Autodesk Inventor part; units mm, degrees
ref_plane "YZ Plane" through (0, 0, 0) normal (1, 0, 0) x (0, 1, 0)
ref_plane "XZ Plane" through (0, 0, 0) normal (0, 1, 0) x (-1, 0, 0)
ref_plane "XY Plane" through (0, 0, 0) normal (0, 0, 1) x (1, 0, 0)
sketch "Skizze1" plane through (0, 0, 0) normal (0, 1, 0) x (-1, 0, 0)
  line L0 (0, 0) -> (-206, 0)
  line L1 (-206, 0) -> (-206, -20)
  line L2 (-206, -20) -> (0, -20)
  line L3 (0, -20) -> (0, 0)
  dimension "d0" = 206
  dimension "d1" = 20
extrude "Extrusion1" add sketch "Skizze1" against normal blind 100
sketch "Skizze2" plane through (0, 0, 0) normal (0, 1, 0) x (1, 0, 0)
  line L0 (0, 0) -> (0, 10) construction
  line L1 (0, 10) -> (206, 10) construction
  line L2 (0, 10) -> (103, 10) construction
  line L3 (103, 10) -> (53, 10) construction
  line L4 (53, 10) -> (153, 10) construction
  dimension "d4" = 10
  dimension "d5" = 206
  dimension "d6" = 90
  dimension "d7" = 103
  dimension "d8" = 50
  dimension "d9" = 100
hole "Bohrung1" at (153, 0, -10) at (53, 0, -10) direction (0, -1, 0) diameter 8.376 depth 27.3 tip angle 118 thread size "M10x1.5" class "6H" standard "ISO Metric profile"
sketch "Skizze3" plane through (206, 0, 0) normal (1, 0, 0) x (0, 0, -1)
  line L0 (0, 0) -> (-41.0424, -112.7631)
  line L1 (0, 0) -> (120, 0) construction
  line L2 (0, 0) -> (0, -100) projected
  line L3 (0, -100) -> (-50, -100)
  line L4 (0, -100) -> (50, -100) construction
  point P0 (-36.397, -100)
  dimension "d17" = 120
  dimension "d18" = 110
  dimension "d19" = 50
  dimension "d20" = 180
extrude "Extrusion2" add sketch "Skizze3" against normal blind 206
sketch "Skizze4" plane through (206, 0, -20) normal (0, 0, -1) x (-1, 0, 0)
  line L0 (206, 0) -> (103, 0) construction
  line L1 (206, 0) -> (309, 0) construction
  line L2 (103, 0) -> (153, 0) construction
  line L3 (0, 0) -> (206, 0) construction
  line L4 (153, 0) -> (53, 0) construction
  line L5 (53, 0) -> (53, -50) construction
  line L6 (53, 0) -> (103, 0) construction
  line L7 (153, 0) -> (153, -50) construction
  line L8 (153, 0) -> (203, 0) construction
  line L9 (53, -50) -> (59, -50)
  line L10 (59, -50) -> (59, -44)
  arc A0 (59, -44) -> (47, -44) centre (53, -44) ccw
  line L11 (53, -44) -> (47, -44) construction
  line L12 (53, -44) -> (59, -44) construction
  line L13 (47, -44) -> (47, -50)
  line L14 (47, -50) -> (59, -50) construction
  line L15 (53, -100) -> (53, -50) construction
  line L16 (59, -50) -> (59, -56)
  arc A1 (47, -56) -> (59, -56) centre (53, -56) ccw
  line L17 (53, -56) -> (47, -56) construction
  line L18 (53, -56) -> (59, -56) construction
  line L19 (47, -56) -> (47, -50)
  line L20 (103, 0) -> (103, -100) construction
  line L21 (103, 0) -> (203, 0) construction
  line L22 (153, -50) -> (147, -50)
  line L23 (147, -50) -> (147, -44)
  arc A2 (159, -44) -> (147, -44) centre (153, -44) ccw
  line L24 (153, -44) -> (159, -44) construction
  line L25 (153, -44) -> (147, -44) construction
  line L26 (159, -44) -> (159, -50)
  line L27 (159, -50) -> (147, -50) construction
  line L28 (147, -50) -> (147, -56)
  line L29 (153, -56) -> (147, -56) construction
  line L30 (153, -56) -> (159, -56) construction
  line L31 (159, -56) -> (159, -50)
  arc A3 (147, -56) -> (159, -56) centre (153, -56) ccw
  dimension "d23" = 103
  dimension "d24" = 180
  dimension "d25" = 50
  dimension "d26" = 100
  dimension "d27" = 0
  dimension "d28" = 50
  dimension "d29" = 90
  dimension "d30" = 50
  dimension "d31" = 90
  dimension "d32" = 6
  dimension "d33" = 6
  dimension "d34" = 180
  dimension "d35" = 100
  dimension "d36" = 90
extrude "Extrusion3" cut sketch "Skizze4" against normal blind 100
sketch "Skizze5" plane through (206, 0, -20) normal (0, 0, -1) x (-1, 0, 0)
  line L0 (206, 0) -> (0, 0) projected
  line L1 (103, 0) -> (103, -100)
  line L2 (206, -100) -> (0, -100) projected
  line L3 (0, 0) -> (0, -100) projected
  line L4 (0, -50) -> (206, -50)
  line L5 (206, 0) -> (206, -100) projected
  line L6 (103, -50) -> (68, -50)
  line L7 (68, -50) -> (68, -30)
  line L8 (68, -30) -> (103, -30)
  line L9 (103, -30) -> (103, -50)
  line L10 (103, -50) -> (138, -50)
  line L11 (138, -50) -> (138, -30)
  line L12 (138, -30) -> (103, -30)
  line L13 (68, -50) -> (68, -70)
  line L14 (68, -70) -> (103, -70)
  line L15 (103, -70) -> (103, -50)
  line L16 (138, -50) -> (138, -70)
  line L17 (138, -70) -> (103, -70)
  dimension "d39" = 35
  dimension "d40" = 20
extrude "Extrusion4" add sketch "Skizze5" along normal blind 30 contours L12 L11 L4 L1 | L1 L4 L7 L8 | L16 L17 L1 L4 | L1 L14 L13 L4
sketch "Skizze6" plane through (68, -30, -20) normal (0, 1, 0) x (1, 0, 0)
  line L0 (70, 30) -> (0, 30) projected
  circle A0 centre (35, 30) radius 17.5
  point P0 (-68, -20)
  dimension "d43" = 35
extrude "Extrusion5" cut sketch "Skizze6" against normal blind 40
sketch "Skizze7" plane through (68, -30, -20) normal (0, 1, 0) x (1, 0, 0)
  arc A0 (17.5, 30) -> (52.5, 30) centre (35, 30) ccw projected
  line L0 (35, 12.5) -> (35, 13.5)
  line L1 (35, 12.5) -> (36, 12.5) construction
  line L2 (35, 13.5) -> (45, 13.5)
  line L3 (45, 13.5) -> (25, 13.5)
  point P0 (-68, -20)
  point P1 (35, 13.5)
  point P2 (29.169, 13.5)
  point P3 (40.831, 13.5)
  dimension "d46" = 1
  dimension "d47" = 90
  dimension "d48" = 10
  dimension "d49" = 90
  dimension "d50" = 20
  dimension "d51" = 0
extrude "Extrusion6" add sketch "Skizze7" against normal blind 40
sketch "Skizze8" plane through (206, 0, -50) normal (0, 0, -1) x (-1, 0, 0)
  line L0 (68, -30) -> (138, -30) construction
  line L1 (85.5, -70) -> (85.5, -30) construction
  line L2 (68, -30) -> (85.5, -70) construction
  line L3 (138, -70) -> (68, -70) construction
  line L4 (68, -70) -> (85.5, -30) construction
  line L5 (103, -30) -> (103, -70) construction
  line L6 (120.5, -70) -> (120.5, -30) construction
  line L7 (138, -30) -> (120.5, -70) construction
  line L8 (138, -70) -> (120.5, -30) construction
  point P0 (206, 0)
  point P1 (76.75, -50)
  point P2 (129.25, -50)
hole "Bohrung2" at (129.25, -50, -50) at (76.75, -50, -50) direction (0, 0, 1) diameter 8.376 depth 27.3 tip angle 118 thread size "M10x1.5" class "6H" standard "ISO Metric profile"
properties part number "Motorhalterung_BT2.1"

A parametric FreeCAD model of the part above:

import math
import FreeCAD as App
import Part
import Sketcher

V = App.Vector
Q = App.Units.Quantity


def add_polygon(sketch, points):
    """Adds a closed chain of lines whose ends are joined by coincident constraints."""
    first, n = sketch.GeometryCount, len(points)
    for a, b in zip(points, points[1:] + points[:1]):
        sketch.addGeometry(Part.LineSegment(App.Vector(*a, 0), App.Vector(*b, 0)), False)
    for i in range(n):
        sketch.addConstraint(Sketcher.Constraint("Coincident", first + i, 2, first + (i + 1) % n, 1))

doc = App.newDocument("Part")
body = doc.addObject("PartDesign::Body", "Body")

# Sketch on XZ plane
sketch1 = doc.addObject("Sketcher::SketchObject", "Sketch")
body.addObject(sketch1)
sketch1.AttachmentSupport = (doc.XZ_Plane, [""])
sketch1.MapMode = "FlatFace"
add_polygon(sketch1, [(0, -20), (0, 0), (206, 0), (206, -20)])  # lines 0-3
sketch1.addConstraint([
    Sketcher.Constraint("Vertical", 0),
    Sketcher.Constraint("Horizontal", 1),
    Sketcher.Constraint("Vertical", 2),
    Sketcher.Constraint("Horizontal", 3),
    Sketcher.Constraint("Coincident", 0, 2, -1, 1),
    Sketcher.Constraint("DistanceX", 1, 1, 1, 2, Q("206 mm")),
    Sketcher.Constraint("DistanceY", 0, 1, 0, 2, Q("20 mm")),
])
pad1 = doc.addObject("PartDesign::Pad", "Pad")
body.addObject(pad1)
pad1.Profile = sketch1
pad1.Length = 100

# Sketch on XZ plane
sketch2 = doc.addObject("Sketcher::SketchObject", "Sketch001")
body.addObject(sketch2)
sketch2.AttachmentSupport = (doc.XZ_Plane, [""])
sketch2.MapMode = "FlatFace"
sketch2.addGeometry([
    Part.Circle(V(153, -10, 0), V(0, 0, 1), 4.188),
    Part.Circle(V(53, -10, 0), V(0, 0, 1), 4.188),
], False)
sketch2.addConstraint([
    Sketcher.Constraint("Equal", 0, 1),
    Sketcher.Constraint("Horizontal", 0, 3, 1, 3),
    Sketcher.Constraint("Diameter", 0, Q("8.376 mm")),
    Sketcher.Constraint("DistanceX", -1, 1, 0, 3, Q("153 mm")),
    Sketcher.Constraint("DistanceY", 0, 3, -1, 1, Q("10 mm")),
    Sketcher.Constraint("DistanceX", -1, 1, 1, 3, Q("53 mm")),
])
doc.recompute()
hole = doc.addObject("PartDesign::Hole", "Hole")
body.addObject(hole)
hole.Profile = sketch2
hole.ThreadType = "None"
hole.Diameter = 8.376
hole.DepthType = "Dimension"
hole.Depth = 27.3
hole.DrillPoint = "Angled"
hole.DrillPointAngle = 118
hole.Reversed = True

# Sketch on YZ plane
sketch3 = doc.addObject("Sketcher::SketchObject", "Sketch002")
body.addObject(sketch3)
sketch3.AttachmentSupport = (doc.YZ_Plane, [""])
sketch3.MapMode = "FlatFace"
sketch3.AttachmentOffset = App.Placement(V(0, 0, 206), App.Rotation())
add_polygon(sketch3, [(-100, 0), (0, 0), (-100, 36.397013)])  # lines 0-2
sketch3.addConstraint([
    Sketcher.Constraint("Horizontal", 0),
    Sketcher.Constraint("Vertical", 2),
    Sketcher.Constraint("Coincident", 0, 2, -1, 1),
    Sketcher.Constraint("DistanceX", 0, 1, 0, 2, Q("100 mm")),
    Sketcher.Constraint("Angle", 1, Q("160 deg")),
])
pad2 = doc.addObject("PartDesign::Pad", "Pad001")
body.addObject(pad2)
pad2.Profile = sketch3
pad2.Length = 206
pad2.Reversed = True

# Sketch on XY plane
sketch4 = doc.addObject("Sketcher::SketchObject", "Sketch003")
body.addObject(sketch4)
sketch4.AttachmentSupport = (doc.XY_Plane, [""])
sketch4.MapMode = "FlatFace"
sketch4.AttachmentOffset = App.Placement(V(0, 0, -20), App.Rotation())
sketch4.addGeometry([
    Part.LineSegment(V(147, -56, 0), V(147, -44, 0)),  # 0
    Part.ArcOfCircle(Part.Circle(V(153, -44, 0), V(0, 0, 1), 6), math.radians(0), math.radians(180)),  # 1
    Part.LineSegment(V(159, -44, 0), V(159, -56, 0)),  # 2
    Part.ArcOfCircle(Part.Circle(V(153, -56, 0), V(0, 0, 1), 6), math.radians(180), math.radians(360)),  # 3
    Part.LineSegment(V(59, -44, 0), V(59, -56, 0)),  # 4
    Part.ArcOfCircle(Part.Circle(V(53, -56, 0), V(0, 0, 1), 6), math.radians(180), math.radians(360)),  # 5
    Part.LineSegment(V(47, -56, 0), V(47, -44, 0)),  # 6
    Part.ArcOfCircle(Part.Circle(V(53, -44, 0), V(0, 0, 1), 6), math.radians(0), math.radians(180)),  # 7
], False)
sketch4.addConstraint([
    Sketcher.Constraint("Tangent", 0, 2, 1, 2),
    Sketcher.Constraint("Tangent", 1, 1, 2, 1),
    Sketcher.Constraint("Tangent", 2, 2, 3, 2),
    Sketcher.Constraint("Tangent", 3, 1, 0, 1),
    Sketcher.Constraint("Tangent", 4, 2, 5, 2),
    Sketcher.Constraint("Tangent", 5, 1, 6, 1),
    Sketcher.Constraint("Tangent", 6, 2, 7, 2),
    Sketcher.Constraint("Tangent", 7, 1, 4, 1),
    Sketcher.Constraint("Vertical", 0),
    Sketcher.Constraint("Vertical", 2),
    Sketcher.Constraint("Vertical", 4),
    Sketcher.Constraint("Vertical", 6),
    Sketcher.Constraint("Equal", 3, 5),
    Sketcher.Constraint("Horizontal", 3, 3, 5, 3),
    Sketcher.Constraint("Horizontal", 1, 3, 7, 3),
    Sketcher.Constraint("Radius", 1, Q("6 mm")),
    Sketcher.Constraint("DistanceX", 5, 3, 3, 3, Q("100 mm")),
    Sketcher.Constraint("DistanceY", 0, 1, 0, 2, Q("12 mm")),
    Sketcher.Constraint("DistanceX", -1, 1, 1, 3, Q("153 mm")),
    Sketcher.Constraint("DistanceY", 1, 3, -1, 1, Q("44 mm")),
])
pocket1 = doc.addObject("PartDesign::Pocket", "Pocket")
body.addObject(pocket1)
pocket1.Profile = sketch4
pocket1.Length = 100
pocket1.Reversed = True

# Sketch on XY plane
sketch5 = doc.addObject("Sketcher::SketchObject", "Sketch004")
body.addObject(sketch5)
sketch5.AttachmentSupport = (doc.XY_Plane, [""])
sketch5.MapMode = "FlatFace"
sketch5.AttachmentOffset = App.Placement(V(0, 0, -20), App.Rotation())
add_polygon(sketch5, [(68, -30), (138, -30), (138, -70), (68, -70)])  # lines 0-3
sketch5.addConstraint([
    Sketcher.Constraint("Horizontal", 0),
    Sketcher.Constraint("Vertical", 1),
    Sketcher.Constraint("Horizontal", 2),
    Sketcher.Constraint("Vertical", 3),
    Sketcher.Constraint("DistanceX", 0, 1, 0, 2, Q("70 mm")),
    Sketcher.Constraint("DistanceY", 1, 2, 1, 1, Q("40 mm")),
    Sketcher.Constraint("DistanceX", -1, 1, 0, 2, Q("138 mm")),
    Sketcher.Constraint("DistanceY", 0, 2, -1, 1, Q("30 mm")),
])
pad3 = doc.addObject("PartDesign::Pad", "Pad002")
body.addObject(pad3)
pad3.Profile = sketch5
pad3.Length = 30
pad3.Reversed = True

# Sketch on XZ plane
sketch6 = doc.addObject("Sketcher::SketchObject", "Sketch005")
body.addObject(sketch6)
sketch6.AttachmentSupport = (doc.XZ_Plane, [""])
sketch6.MapMode = "FlatFace"
sketch6.AttachmentOffset = App.Placement(V(0, 0, 30), App.Rotation())
sketch6.addGeometry(Part.Circle(V(103, -50, 0), V(0, 0, 1), 17.5), False)
sketch6.addConstraint([
    Sketcher.Constraint("Diameter", 0, Q("35 mm")),
    Sketcher.Constraint("DistanceX", -1, 1, 0, 3, Q("103 mm")),
    Sketcher.Constraint("DistanceY", 0, 3, -1, 1, Q("50 mm")),
])
pocket2 = doc.addObject("PartDesign::Pocket", "Pocket001")
body.addObject(pocket2)
pocket2.Profile = sketch6
pocket2.Length = 40
pocket2.Reversed = True

# Sketch on XZ plane
sketch7 = doc.addObject("Sketcher::SketchObject", "Sketch006")
body.addObject(sketch7)
sketch7.AttachmentSupport = (doc.XZ_Plane, [""])
sketch7.MapMode = "FlatFace"
sketch7.AttachmentOffset = App.Placement(V(0, 0, 30), App.Rotation())
sketch7.addGeometry([
    Part.ArcOfCircle(Part.Circle(V(103, -50, 0), V(0, 0, 1), 17.5), math.radians(70.537049), math.radians(109.462951)),
    Part.LineSegment(V(108.830952, -33.5, 0), V(97.169048, -33.5, 0)),
], False)
sketch7.addConstraint([
    Sketcher.Constraint("Coincident", 0, 1, 1, 1),
    Sketcher.Constraint("Coincident", 1, 2, 0, 2),
    Sketcher.Constraint("Horizontal", 1),
    Sketcher.Constraint("Radius", 0, Q("17.5 mm")),
    Sketcher.Constraint("DistanceX", -1, 1, 0, 3, Q("103 mm")),
    Sketcher.Constraint("DistanceY", 0, 3, -1, 1, Q("50 mm")),
    Sketcher.Constraint("DistanceY", 0, 1, -1, 1, Q("33.5 mm")),
])
pad4 = doc.addObject("PartDesign::Pad", "Pad003")
body.addObject(pad4)
pad4.Profile = sketch7
pad4.Length = 40

# Sketch on XY plane
sketch8 = doc.addObject("Sketcher::SketchObject", "Sketch007")
body.addObject(sketch8)
sketch8.AttachmentSupport = (doc.XY_Plane, [""])
sketch8.MapMode = "FlatFace"
sketch8.AttachmentOffset = App.Placement(V(0, 0, -50), App.Rotation())
sketch8.addGeometry([
    Part.Circle(V(129.25, -50, 0), V(0, 0, 1), 4.188),
    Part.Circle(V(76.75, -50, 0), V(0, 0, 1), 4.188),
], False)
sketch8.addConstraint([
    Sketcher.Constraint("Equal", 0, 1),
    Sketcher.Constraint("Horizontal", 0, 3, 1, 3),
    Sketcher.Constraint("Diameter", 0, Q("8.376 mm")),
    Sketcher.Constraint("DistanceY", 0, 3, -1, 1, Q("50 mm")),
    Sketcher.Constraint("DistanceX", 1, 3, 0, 3, Q("52.5 mm")),
    Sketcher.Constraint("DistanceX", -1, 1, 0, 3, Q("129.25 mm")),
])
doc.recompute()
hole2 = doc.addObject("PartDesign::Hole", "Hole001")
body.addObject(hole2)
hole2.Profile = sketch8
hole2.ThreadType = "None"
hole2.Diameter = 8.376
hole2.DepthType = "Dimension"
hole2.Depth = 27.3
hole2.DrillPoint = "Angled"
hole2.DrillPointAngle = 118
hole2.Reversed = True

doc.recompute()
